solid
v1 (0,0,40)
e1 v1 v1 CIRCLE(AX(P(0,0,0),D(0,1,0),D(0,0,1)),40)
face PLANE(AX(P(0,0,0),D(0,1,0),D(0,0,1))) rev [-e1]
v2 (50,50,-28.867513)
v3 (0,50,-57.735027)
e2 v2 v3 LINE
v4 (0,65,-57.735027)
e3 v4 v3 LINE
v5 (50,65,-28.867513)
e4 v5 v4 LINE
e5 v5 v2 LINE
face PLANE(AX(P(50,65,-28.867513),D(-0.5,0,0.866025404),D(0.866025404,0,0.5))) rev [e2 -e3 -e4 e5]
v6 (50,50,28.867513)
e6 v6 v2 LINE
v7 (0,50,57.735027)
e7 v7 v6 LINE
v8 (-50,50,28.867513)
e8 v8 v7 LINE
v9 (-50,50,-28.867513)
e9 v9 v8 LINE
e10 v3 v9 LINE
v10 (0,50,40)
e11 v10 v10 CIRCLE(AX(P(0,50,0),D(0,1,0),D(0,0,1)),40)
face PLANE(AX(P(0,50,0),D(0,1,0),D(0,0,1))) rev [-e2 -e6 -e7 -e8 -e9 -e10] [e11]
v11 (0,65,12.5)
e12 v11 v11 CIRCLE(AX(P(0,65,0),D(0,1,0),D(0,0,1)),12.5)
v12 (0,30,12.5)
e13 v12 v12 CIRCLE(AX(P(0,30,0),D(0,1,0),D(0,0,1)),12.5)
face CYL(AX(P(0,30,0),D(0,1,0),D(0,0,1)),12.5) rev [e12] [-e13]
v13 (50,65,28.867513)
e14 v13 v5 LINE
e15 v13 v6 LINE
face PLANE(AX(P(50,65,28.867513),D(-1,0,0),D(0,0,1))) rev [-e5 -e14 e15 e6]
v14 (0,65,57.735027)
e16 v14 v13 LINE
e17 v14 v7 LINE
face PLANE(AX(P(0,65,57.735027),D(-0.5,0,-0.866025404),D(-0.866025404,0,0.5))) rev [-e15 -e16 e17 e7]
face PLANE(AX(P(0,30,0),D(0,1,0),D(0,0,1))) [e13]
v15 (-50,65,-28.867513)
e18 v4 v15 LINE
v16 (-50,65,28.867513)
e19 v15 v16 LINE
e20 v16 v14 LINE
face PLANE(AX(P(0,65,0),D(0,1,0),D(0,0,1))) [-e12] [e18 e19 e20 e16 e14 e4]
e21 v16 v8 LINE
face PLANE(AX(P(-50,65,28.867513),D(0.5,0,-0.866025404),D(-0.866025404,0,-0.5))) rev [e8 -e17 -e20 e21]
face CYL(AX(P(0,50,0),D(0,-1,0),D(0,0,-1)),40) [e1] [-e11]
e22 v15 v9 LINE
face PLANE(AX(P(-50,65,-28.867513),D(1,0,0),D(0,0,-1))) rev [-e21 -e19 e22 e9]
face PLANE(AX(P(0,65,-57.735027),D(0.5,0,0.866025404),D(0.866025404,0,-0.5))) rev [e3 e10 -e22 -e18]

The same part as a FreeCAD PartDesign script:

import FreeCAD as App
import Part
import Sketcher
Q = App.Units.Quantity

doc = App.newDocument("Part")
body = doc.addObject("PartDesign::Body", "Body")

# Sketch on XZ plane
sketch1 = body.newObject("Sketcher::SketchObject", "Sketch")
sketch1.AttachmentSupport = (doc.getObject("XZ_Plane"), [""])
sketch1.MapMode = "FlatFace"
sketch1.addGeometry(Part.Circle(App.Vector(0, 0, 0), App.Vector(0, 0, 1), 40), False)
sketch1.addConstraint(Sketcher.Constraint("Coincident", 0, 3, -1, 1))
sketch1.addConstraint(Sketcher.Constraint("Diameter", 0, Q("80 mm")))
pad1 = body.newObject("PartDesign::Pad", "Pad")
pad1.Profile = sketch1
pad1.Length = 50
pad1.Reversed = True

# Sketch on XZ plane
sketch2 = body.newObject("Sketcher::SketchObject", "Sketch001")
sketch2.AttachmentSupport = (doc.getObject("XZ_Plane"), [""])
sketch2.MapMode = "FlatFace"
sketch2.AttachmentOffset = App.Placement(App.Vector(0, 0, -50), App.Rotation())
sketch2.addGeometry(Part.LineSegment(App.Vector(0, 58, 0), App.Vector(50, 29, 0)), False)
sketch2.addGeometry(Part.LineSegment(App.Vector(50, 29, 0), App.Vector(50, -29, 0)), False)
sketch2.addGeometry(Part.LineSegment(App.Vector(50, -29, 0), App.Vector(0, -58, 0)), False)
sketch2.addGeometry(Part.LineSegment(App.Vector(0, -58, 0), App.Vector(-50, -29, 0)), False)
sketch2.addGeometry(Part.LineSegment(App.Vector(-50, -29, 0), App.Vector(-50, 29, 0)), False)
sketch2.addGeometry(Part.LineSegment(App.Vector(-50, 29, 0), App.Vector(0, 58, 0)), False)
sketch2.addConstraint(Sketcher.Constraint("Coincident", 0, 2, 1, 1))
sketch2.addConstraint(Sketcher.Constraint("Coincident", 1, 2, 2, 1))
sketch2.addConstraint(Sketcher.Constraint("Coincident", 2, 2, 3, 1))
sketch2.addConstraint(Sketcher.Constraint("Coincident", 3, 2, 4, 1))
sketch2.addConstraint(Sketcher.Constraint("Coincident", 4, 2, 5, 1))
sketch2.addConstraint(Sketcher.Constraint("Coincident", 5, 2, 0, 1))
sketch2.addConstraint(Sketcher.Constraint("Vertical", 1))
sketch2.addConstraint(Sketcher.Constraint("Vertical", 4))
sketch2.addConstraint(Sketcher.Constraint("Symmetric", 0, 2, 3, 2, -1, 1))
sketch2.addConstraint(Sketcher.Constraint("Symmetric", 2, 2, 5, 2, -1, 1))
sketch2.addConstraint(Sketcher.Constraint("PointOnObject", 2, 2, -2))
sketch2.addConstraint(Sketcher.Constraint("Parallel", 2, 5))
sketch2.addConstraint(Sketcher.Constraint("Horizontal", 1, 2, 3, 2))
sketch2.addConstraint(Sketcher.Constraint("Angle", 0, Q("-30 deg")))
sketch2.addConstraint(Sketcher.Constraint("DistanceX", -1, 1, 0, 2, Q("50 mm")))
sketch2.addConstraint(Sketcher.Constraint("DistanceY", 1, 2, 1, 1, Q("57.735027 mm")))
pad2 = body.newObject("PartDesign::Pad", "Pad001")
pad2.Profile = sketch2
pad2.Length = 15
pad2.Reversed = True

# Sketch on XZ plane
sketch3 = body.newObject("Sketcher::SketchObject", "Sketch002")
sketch3.AttachmentSupport = (doc.getObject("XZ_Plane"), [""])
sketch3.MapMode = "FlatFace"
sketch3.AttachmentOffset = App.Placement(App.Vector(0, 0, -65), App.Rotation())
sketch3.addGeometry(Part.Circle(App.Vector(0, 0, 0), App.Vector(0, 0, 1), 12), False)
sketch3.addConstraint(Sketcher.Constraint("Coincident", 0, 3, -1, 1))
sketch3.addConstraint(Sketcher.Constraint("Diameter", 0, Q("25 mm")))
pocket1 = body.newObject("PartDesign::Pocket", "Pocket")
pocket1.Profile = sketch3
pocket1.Length = 35
pocket1.Reversed = True

doc.recompute()
